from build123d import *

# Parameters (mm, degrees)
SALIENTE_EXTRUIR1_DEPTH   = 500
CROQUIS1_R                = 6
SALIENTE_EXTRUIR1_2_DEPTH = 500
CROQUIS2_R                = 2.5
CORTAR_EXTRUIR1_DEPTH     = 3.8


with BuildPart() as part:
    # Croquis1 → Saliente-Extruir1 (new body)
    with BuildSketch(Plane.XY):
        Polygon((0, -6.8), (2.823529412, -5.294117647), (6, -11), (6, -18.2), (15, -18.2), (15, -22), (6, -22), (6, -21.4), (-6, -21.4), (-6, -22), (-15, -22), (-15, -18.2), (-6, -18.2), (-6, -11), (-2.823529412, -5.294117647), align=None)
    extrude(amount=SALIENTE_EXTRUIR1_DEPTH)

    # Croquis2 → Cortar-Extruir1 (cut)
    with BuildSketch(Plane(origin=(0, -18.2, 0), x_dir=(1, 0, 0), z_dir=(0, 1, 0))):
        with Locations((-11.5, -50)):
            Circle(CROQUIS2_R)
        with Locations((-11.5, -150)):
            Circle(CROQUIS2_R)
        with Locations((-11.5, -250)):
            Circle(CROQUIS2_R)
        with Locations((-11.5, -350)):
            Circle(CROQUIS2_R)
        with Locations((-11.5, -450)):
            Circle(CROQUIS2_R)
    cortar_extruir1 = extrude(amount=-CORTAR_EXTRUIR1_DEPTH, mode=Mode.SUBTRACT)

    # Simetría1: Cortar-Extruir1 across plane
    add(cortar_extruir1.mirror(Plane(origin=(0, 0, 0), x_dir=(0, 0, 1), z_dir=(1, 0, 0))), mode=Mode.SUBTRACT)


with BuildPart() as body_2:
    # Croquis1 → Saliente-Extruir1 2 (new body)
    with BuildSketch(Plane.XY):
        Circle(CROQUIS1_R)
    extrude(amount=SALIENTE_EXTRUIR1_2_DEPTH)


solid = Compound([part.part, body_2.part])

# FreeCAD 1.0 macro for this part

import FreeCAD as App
import Part
import Sketcher
from FreeCAD import Vector

doc = App.newDocument("Part")
params = doc.addObject("Spreadsheet::Sheet", "Params")
for row, (alias, value) in enumerate([
    ("sketch1_width", "9 mm"),
    ("sketch1_width2", "12 mm"),
    ("sketch1_height", "7.2 mm"),
    ("sketch1_height2", "3.8 mm"),
    ("sketch1_height3", "0.6 mm"),
    ("pad1_length", "500 mm"),
    ("sketch2_diameter", "5 mm"),
    ("pocket1_length", "3.8 mm"),
    ("sketch3_diameter", "12 mm"),
    ("pad2_length", "500 mm"),
], start=1):
    params.set(f"A{row}", alias)
    params.set(f"B{row}", "=" + value)
    params.setAlias(f"B{row}", alias)

body = doc.addObject("PartDesign::Body", "Body")

sketch1 = doc.addObject("Sketcher::SketchObject", "Sketch")
body.addObject(sketch1)
sketch1.AttachmentSupport = (doc.XY_Plane, [""])
sketch1.MapMode = "FlatFace"
sketch1.addGeometry([
    Part.LineSegment(Vector(2.8, -5.3, 0), Vector(0, -6.8, 0)),
    Part.LineSegment(Vector(0, -6.8, 0), Vector(-2.8, -5.3, 0)),
    Part.LineSegment(Vector(-2.8, -5.3, 0), Vector(-6, -11, 0)),
    Part.LineSegment(Vector(-6, -11, 0), Vector(-6, -18.2, 0)),
    Part.LineSegment(Vector(-6, -18.2, 0), Vector(-15, -18.2, 0)),
    Part.LineSegment(Vector(-15, -18.2, 0), Vector(-15, -22, 0)),
    Part.LineSegment(Vector(-15, -22, 0), Vector(-6, -22, 0)),
    Part.LineSegment(Vector(-6, -22, 0), Vector(-6, -21.4, 0)),
    Part.LineSegment(Vector(-6, -21.4, 0), Vector(6, -21.4, 0)),
    Part.LineSegment(Vector(6, -21.4, 0), Vector(6, -22, 0)),
    Part.LineSegment(Vector(6, -22, 0), Vector(15, -22, 0)),
    Part.LineSegment(Vector(15, -22, 0), Vector(15, -18.2, 0)),
    Part.LineSegment(Vector(15, -18.2, 0), Vector(6, -18.2, 0)),
    Part.LineSegment(Vector(6, -18.2, 0), Vector(6, -11, 0)),
    Part.LineSegment(Vector(6, -11, 0), Vector(2.8, -5.3, 0)),
], False)
sketch1.addConstraint([
    Sketcher.Constraint("Coincident", 0, 2, 1, 1),
    Sketcher.Constraint("Coincident", 1, 2, 2, 1),
    Sketcher.Constraint("Coincident", 2, 2, 3, 1),
    Sketcher.Constraint("Coincident", 3, 2, 4, 1),
    Sketcher.Constraint("Coincident", 4, 2, 5, 1),
    Sketcher.Constraint("Coincident", 5, 2, 6, 1),
    Sketcher.Constraint("Coincident", 6, 2, 7, 1),
    Sketcher.Constraint("Coincident", 7, 2, 8, 1),
    Sketcher.Constraint("Coincident", 8, 2, 9, 1),
    Sketcher.Constraint("Coincident", 9, 2, 10, 1),
    Sketcher.Constraint("Coincident", 10, 2, 11, 1),
    Sketcher.Constraint("Coincident", 11, 2, 12, 1),
    Sketcher.Constraint("Coincident", 12, 2, 13, 1),
    Sketcher.Constraint("Coincident", 13, 2, 14, 1),
    Sketcher.Constraint("Coincident", 14, 2, 0, 1),
    Sketcher.Constraint("Vertical", 3),
    Sketcher.Constraint("Horizontal", 4),
    Sketcher.Constraint("Vertical", 5),
    Sketcher.Constraint("Horizontal", 6),
    Sketcher.Constraint("Vertical", 7),
    Sketcher.Constraint("Horizontal", 8),
    Sketcher.Constraint("Vertical", 9),
    Sketcher.Constraint("Horizontal", 10),
    Sketcher.Constraint("Vertical", 11),
    Sketcher.Constraint("Horizontal", 12),
    Sketcher.Constraint("Vertical", 13),
    Sketcher.Constraint("Symmetric", 6, 2, 9, 2, -2),
    Sketcher.Constraint("Symmetric", 4, 2, 11, 2, -2),
    Sketcher.Constraint("Symmetric", 2, 2, 13, 2, -2),
    Sketcher.Constraint("Symmetric", 1, 2, 14, 2, -2),
    Sketcher.Constraint("PointOnObject", 0, 2, -2),
    Sketcher.Constraint("Vertical", 3, 2, 6, 2),
    Sketcher.Constraint("DistanceX", 4, 2, 4, 1, 9.0),
    Sketcher.Constraint("DistanceX", 8, 1, 8, 2, 12.0),
    Sketcher.Constraint("DistanceY", 3, 2, 3, 1, 7.2),
    Sketcher.Constraint("DistanceY", 5, 2, 5, 1, 3.8),
    Sketcher.Constraint("DistanceY", 7, 1, 7, 2, 0.6),
    Sketcher.Constraint("DistanceY", 2, 2, -1, 1, 11.0),
    Sketcher.Constraint("Distance", 0, 3.2),
    Sketcher.Constraint("DistanceY", 0, 2, -1, 1, 6.8),
    Sketcher.Constraint("Distance", 2, 6.530472),
])
sketch1.setExpression("Constraints[32]", "Params.sketch1_width")
sketch1.setExpression("Constraints[33]", "Params.sketch1_width2")
sketch1.setExpression("Constraints[34]", "Params.sketch1_height")
sketch1.setExpression("Constraints[35]", "Params.sketch1_height2")
sketch1.setExpression("Constraints[36]", "Params.sketch1_height3")
pad1 = doc.addObject("PartDesign::Pad", "Pad")
body.addObject(pad1)
pad1.Profile = sketch1
pad1.setExpression("Length", "Params.pad1_length")

sketch2 = doc.addObject("Sketcher::SketchObject", "Sketch001")
body.addObject(sketch2)
sketch2.AttachmentSupport = (doc.XZ_Plane, [""])
sketch2.MapMode = "FlatFace"
sketch2.AttachmentOffset = App.Placement(Vector(0, 0, 18.2), App.Rotation())
sketch2.addGeometry([
    Part.Circle(Vector(-11.5, 50, 0), Vector(0, 0, 1), 2.5),
    Part.Circle(Vector(-11.5, 150, 0), Vector(0, 0, 1), 2.5),
    Part.Circle(Vector(-11.5, 250, 0), Vector(0, 0, 1), 2.5),
    Part.Circle(Vector(-11.5, 350, 0), Vector(0, 0, 1), 2.5),
    Part.Circle(Vector(-11.5, 450, 0), Vector(0, 0, 1), 2.5),
], False)
sketch2.addConstraint([
    Sketcher.Constraint("Equal", 0, 1),
    Sketcher.Constraint("Equal", 1, 2),
    Sketcher.Constraint("Equal", 2, 3),
    Sketcher.Constraint("Equal", 3, 4),
    Sketcher.Constraint("Vertical", 0, 3, 1, 3),
    Sketcher.Constraint("Vertical", 1, 3, 2, 3),
    Sketcher.Constraint("Vertical", 2, 3, 3, 3),
    Sketcher.Constraint("Vertical", 3, 3, 4, 3),
    Sketcher.Constraint("Diameter", 0, 5.0),
    Sketcher.Constraint("DistanceY", -1, 1, 0, 3, 50.0),
    Sketcher.Constraint("DistanceY", -1, 1, 1, 3, 150.0),
    Sketcher.Constraint("DistanceY", -1, 1, 2, 3, 250.0),
    Sketcher.Constraint("DistanceY", -1, 1, 3, 3, 350.0),
    Sketcher.Constraint("DistanceY", -1, 1, 4, 3, 450.0),
    Sketcher.Constraint("DistanceX", 0, 3, -1, 1, 11.5),
])
sketch2.setExpression("Constraints[8]", "Params.sketch2_diameter")
pocket1 = doc.addObject("PartDesign::Pocket", "Pocket")
body.addObject(pocket1)
pocket1.Profile = sketch2
pocket1.setExpression("Length", "Params.pocket1_length")
pocket1.Reversed = True
doc.recompute()

mirrored = doc.addObject("PartDesign::Mirrored", "Mirrored")
body.addObject(mirrored)
mirrored.Originals = [pocket1]
mirrored.MirrorPlane = (doc.YZ_Plane, [""])
body.Tip = mirrored
body2 = doc.addObject("PartDesign::Body", "Body001")

sketch3 = doc.addObject("Sketcher::SketchObject", "Sketch002")
body2.addObject(sketch3)
sketch3.AttachmentSupport = (doc.getObject("XY_Plane001"), [""])
sketch3.MapMode = "FlatFace"
sketch3.addGeometry(Part.Circle(Vector(0, 0, 0), Vector(0, 0, 1), 6), False)
sketch3.addConstraint([
    Sketcher.Constraint("Coincident", 0, 3, -1, 1),
    Sketcher.Constraint("Diameter", 0, 12.0),
])
sketch3.setExpression("Constraints[1]", "Params.sketch3_diameter")
pad2 = doc.addObject("PartDesign::Pad", "Pad001")
body2.addObject(pad2)
pad2.Profile = sketch3
pad2.setExpression("Length", "Params.pad2_length")

doc.recompute()
